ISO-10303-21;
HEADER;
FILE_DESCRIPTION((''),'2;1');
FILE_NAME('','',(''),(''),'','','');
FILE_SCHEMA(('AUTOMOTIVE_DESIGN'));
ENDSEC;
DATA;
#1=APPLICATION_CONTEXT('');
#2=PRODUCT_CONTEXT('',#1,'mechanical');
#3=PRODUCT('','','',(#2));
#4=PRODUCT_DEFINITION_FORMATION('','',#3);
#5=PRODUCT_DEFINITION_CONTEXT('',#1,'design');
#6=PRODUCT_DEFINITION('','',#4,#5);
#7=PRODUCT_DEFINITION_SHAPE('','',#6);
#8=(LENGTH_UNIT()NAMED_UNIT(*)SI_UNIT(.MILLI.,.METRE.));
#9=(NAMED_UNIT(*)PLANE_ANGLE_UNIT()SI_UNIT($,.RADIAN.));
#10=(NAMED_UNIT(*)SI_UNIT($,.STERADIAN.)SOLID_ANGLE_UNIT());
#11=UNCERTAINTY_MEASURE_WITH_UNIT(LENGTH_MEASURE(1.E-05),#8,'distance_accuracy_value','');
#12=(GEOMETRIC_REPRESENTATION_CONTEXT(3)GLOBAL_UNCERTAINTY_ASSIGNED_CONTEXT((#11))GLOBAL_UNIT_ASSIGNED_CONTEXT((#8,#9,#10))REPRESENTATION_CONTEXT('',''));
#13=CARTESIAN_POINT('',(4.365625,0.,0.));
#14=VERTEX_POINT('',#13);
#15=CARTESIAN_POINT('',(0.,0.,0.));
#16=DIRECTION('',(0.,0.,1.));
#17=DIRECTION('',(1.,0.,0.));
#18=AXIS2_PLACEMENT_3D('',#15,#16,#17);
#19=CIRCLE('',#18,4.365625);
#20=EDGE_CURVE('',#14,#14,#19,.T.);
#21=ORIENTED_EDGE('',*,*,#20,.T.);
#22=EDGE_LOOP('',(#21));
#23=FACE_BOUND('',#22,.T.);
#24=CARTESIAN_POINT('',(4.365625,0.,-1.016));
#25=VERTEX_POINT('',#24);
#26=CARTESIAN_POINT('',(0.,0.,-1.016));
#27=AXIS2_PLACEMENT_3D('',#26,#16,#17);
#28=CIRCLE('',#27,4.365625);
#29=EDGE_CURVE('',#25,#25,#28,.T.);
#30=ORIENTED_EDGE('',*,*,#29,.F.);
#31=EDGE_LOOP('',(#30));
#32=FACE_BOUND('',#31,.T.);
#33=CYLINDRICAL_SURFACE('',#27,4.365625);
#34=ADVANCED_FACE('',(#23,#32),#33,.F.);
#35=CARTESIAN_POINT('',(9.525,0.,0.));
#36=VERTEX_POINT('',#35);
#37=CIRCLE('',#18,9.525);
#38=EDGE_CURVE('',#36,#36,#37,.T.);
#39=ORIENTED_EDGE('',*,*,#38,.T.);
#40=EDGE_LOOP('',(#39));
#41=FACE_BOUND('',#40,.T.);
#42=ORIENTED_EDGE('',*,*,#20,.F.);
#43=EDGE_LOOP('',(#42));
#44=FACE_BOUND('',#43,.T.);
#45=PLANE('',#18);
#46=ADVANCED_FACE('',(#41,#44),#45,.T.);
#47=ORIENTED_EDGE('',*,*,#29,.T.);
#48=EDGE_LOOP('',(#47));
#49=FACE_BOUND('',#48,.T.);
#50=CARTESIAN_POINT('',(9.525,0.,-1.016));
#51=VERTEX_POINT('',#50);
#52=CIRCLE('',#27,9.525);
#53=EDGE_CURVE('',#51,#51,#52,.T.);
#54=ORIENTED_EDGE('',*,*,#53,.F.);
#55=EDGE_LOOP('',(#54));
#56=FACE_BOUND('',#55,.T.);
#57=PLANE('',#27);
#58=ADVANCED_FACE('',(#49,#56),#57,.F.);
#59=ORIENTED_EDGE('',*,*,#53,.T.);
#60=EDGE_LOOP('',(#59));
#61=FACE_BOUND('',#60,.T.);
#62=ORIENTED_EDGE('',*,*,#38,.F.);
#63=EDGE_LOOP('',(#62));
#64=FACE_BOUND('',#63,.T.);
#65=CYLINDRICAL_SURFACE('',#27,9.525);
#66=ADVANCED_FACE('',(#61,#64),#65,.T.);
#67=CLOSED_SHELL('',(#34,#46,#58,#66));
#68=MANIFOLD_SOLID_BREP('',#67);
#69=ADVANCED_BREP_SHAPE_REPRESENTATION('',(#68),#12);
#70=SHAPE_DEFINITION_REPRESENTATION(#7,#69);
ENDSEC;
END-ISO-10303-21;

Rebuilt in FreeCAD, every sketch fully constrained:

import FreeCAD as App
import Part
import Sketcher

V = App.Vector
Q = App.Units.Quantity

doc = App.newDocument("Part")
body = doc.addObject("PartDesign::Body", "Body")

# Sketch on XY plane
sketch1 = body.newObject("Sketcher::SketchObject", "Sketch")
sketch1.AttachmentSupport = (doc.getObject("XY_Plane"), [""])
sketch1.MapMode = "FlatFace"
sketch1.addGeometry([
    Part.Circle(V(0, 0, 0), V(0, 0, 1), 9.525),
    Part.Circle(V(0, 0, 0), V(0, 0, 1), 4.365625),
], False)
sketch1.addConstraint([
    Sketcher.Constraint("Coincident", 0, 3, -1, 1),
    Sketcher.Constraint("Coincident", 1, 3, -1, 1),
    Sketcher.Constraint("Diameter", 0, Q("0.75 in")),
    Sketcher.Constraint("Diameter", 1, Q("0.34375 in")),
])
pad1 = body.newObject("PartDesign::Pad", "Pad")
pad1.Profile = sketch1
pad1.Length = Q("0.04 in")
pad1.Reversed = True

doc.recompute()
